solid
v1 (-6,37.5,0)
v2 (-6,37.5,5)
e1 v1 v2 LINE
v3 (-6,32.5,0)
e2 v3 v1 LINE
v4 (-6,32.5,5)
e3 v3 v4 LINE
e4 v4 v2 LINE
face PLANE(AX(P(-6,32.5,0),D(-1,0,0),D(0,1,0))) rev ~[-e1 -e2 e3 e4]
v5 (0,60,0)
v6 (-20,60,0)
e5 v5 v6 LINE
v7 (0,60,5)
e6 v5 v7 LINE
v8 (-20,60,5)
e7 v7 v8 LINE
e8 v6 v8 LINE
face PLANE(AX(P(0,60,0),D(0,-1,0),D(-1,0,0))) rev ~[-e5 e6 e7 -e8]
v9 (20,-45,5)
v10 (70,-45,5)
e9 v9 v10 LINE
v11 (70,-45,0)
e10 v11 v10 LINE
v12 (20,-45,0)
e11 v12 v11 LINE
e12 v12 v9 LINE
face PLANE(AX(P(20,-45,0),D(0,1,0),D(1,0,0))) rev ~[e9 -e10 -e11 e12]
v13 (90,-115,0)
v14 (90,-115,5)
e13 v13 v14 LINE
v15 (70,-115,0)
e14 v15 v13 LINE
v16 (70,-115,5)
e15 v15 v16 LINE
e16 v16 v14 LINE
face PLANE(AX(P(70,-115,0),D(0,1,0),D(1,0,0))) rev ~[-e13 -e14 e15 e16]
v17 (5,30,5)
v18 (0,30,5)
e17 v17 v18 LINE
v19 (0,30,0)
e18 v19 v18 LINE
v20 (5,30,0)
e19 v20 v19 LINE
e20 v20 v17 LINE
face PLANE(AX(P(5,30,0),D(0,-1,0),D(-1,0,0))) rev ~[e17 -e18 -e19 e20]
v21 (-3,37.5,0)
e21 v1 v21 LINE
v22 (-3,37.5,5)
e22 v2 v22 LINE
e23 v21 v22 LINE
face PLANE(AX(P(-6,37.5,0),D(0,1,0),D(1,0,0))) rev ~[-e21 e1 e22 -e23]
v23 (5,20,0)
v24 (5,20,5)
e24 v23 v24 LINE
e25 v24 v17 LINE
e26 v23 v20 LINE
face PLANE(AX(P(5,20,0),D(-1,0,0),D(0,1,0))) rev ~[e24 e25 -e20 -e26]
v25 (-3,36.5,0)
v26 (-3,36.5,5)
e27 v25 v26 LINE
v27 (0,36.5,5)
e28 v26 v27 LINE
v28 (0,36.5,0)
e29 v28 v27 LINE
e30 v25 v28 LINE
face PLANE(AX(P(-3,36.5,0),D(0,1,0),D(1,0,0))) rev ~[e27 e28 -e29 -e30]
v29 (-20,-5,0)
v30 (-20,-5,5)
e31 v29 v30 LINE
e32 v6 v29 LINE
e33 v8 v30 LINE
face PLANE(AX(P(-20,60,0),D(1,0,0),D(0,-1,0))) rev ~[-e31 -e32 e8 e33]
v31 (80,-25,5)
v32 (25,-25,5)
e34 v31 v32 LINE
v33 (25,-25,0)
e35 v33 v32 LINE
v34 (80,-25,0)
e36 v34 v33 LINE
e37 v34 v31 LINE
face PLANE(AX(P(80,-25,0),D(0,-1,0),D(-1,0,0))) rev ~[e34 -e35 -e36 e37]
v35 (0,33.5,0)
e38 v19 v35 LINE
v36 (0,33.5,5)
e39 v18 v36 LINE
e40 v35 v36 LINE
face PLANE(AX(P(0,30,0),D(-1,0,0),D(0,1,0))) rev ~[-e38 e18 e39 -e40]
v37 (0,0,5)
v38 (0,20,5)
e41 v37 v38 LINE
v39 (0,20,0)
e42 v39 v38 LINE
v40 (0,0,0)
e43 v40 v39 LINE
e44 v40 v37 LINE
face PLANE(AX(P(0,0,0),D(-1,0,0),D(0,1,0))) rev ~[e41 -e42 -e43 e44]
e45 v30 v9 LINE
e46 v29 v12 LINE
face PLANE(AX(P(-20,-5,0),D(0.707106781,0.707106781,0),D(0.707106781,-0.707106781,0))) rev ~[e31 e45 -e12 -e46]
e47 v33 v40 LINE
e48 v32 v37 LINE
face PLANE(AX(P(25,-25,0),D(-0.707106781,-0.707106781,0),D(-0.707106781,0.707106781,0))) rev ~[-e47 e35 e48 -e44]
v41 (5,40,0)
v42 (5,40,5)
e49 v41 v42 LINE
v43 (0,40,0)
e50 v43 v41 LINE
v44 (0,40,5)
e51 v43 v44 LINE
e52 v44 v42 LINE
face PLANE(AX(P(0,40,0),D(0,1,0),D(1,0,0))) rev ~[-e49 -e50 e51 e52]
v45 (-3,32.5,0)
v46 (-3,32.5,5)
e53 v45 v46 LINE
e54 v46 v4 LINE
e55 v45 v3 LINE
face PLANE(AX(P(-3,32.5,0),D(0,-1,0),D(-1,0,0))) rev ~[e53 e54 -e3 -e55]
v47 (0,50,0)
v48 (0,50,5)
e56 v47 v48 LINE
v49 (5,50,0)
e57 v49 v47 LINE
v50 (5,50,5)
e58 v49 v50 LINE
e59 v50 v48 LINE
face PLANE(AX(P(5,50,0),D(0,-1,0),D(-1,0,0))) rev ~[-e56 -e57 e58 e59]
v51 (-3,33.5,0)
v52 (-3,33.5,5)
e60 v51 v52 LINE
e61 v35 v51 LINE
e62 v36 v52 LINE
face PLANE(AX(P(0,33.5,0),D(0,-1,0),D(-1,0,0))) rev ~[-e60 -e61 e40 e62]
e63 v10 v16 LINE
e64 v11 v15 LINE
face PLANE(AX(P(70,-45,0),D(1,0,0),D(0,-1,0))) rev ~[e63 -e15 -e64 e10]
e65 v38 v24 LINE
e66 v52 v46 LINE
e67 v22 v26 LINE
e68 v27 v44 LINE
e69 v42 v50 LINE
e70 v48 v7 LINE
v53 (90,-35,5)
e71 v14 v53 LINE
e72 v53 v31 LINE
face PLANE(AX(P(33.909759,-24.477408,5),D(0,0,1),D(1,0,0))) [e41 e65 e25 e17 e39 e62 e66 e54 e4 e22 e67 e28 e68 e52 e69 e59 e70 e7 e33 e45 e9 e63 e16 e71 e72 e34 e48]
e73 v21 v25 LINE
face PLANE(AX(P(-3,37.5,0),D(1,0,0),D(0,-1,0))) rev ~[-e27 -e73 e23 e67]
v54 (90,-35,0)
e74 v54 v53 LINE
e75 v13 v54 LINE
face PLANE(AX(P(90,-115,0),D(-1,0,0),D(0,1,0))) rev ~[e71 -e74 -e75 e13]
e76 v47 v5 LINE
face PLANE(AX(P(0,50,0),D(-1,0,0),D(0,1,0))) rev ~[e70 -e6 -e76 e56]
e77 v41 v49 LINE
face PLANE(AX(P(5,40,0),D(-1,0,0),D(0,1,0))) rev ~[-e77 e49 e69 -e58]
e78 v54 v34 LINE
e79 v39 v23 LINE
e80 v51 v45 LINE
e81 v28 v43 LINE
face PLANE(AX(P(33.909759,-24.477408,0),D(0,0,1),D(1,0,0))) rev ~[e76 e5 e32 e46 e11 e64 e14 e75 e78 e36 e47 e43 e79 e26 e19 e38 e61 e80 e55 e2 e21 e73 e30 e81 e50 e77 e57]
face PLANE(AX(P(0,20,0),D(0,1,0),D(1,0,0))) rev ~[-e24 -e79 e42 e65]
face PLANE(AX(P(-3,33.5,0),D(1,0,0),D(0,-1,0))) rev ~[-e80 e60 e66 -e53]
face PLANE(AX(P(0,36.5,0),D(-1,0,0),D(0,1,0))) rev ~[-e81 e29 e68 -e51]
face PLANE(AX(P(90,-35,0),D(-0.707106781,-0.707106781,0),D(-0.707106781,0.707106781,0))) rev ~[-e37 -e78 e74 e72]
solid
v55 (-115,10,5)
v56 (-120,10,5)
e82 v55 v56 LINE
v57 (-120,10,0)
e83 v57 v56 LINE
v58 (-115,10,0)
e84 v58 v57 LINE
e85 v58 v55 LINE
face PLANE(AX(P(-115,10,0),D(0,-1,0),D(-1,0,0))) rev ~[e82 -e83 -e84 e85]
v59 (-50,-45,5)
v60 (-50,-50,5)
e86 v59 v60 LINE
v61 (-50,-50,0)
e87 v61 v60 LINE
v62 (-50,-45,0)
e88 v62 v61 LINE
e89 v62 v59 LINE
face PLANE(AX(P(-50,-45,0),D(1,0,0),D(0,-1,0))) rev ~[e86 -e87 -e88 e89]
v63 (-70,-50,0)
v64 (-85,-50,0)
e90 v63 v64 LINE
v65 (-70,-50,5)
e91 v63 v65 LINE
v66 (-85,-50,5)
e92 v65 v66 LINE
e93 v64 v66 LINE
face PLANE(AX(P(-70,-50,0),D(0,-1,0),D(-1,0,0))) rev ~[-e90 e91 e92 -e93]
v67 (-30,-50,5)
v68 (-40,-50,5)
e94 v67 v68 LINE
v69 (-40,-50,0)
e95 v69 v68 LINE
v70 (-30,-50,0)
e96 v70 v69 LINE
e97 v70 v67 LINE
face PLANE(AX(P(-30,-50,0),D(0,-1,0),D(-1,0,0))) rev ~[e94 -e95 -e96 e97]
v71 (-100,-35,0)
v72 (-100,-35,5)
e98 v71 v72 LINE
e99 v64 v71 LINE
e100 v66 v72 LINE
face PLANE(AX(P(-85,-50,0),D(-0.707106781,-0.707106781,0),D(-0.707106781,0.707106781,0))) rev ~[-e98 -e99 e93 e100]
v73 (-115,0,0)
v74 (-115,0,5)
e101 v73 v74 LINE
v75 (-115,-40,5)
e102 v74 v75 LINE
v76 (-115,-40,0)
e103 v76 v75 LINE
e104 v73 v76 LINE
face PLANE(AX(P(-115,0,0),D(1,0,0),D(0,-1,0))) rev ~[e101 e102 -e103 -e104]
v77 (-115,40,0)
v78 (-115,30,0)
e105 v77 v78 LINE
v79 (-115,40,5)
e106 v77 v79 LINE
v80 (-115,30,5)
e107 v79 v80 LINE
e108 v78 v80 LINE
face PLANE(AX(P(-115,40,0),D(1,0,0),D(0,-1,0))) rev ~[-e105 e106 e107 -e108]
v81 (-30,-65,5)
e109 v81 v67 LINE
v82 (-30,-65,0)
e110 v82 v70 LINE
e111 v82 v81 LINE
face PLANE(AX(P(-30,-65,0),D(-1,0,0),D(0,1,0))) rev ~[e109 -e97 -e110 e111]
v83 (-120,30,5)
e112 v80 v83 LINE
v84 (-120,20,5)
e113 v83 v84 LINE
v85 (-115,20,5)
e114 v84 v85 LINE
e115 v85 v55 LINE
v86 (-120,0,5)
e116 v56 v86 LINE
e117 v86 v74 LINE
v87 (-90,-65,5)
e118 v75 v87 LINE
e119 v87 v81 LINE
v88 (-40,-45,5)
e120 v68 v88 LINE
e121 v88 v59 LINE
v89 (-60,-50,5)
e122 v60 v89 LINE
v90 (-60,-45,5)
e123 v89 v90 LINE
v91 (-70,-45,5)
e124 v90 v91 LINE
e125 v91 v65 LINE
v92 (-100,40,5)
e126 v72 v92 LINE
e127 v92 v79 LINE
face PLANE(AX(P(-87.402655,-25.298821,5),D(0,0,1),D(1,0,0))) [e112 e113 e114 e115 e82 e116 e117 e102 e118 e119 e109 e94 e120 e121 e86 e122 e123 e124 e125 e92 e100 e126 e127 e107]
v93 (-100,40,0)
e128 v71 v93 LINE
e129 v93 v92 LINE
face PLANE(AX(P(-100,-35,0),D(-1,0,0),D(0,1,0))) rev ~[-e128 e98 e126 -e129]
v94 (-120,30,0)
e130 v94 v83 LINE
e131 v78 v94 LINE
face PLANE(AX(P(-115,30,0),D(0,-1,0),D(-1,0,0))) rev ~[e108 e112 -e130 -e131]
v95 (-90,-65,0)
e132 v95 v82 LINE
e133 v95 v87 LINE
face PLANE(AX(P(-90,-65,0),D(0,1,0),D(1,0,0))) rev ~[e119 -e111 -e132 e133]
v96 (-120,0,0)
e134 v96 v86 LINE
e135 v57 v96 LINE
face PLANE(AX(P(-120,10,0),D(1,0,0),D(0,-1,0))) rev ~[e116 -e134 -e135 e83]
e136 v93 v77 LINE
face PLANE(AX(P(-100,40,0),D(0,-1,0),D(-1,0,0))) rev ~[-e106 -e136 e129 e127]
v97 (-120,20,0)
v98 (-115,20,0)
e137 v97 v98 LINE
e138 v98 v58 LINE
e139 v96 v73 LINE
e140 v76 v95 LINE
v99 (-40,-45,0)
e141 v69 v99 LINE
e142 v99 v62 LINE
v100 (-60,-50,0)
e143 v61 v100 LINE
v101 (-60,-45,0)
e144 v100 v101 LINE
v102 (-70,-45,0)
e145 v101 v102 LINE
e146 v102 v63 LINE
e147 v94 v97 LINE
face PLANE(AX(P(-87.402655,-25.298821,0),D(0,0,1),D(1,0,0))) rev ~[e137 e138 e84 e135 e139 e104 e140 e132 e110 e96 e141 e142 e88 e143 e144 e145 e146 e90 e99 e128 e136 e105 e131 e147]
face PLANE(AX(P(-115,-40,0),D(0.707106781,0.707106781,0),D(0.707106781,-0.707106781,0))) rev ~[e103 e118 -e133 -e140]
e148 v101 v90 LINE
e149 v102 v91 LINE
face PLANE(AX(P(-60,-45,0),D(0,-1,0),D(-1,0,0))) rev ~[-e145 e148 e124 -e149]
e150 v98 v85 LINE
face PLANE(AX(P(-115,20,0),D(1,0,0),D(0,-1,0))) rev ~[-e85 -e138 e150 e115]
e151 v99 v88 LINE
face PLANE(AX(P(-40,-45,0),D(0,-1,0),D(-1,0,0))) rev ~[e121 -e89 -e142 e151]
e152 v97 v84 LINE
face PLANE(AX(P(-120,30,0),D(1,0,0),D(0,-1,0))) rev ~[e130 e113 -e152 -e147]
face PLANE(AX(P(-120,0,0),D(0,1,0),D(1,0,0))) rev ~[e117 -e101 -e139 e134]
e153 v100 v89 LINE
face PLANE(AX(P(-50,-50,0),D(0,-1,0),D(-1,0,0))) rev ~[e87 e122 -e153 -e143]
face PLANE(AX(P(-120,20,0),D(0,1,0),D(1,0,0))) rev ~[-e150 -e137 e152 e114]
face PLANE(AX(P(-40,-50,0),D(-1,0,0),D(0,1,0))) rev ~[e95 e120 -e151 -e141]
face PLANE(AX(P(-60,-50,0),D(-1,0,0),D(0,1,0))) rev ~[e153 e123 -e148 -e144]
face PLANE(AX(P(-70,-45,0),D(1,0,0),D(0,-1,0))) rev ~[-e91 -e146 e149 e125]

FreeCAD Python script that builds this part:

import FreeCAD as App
import Part
import Sketcher

V = App.Vector
Q = App.Units.Quantity

doc = App.newDocument("Part")
body = doc.addObject("PartDesign::Body", "Body")

sketch1 = body.newObject("Sketcher::SketchObject", "Sketch")
sketch1.AttachmentSupport = (doc.getObject("XY_Plane"), [""])
sketch1.MapMode = "FlatFace"
sketch1.addGeometry(Part.LineSegment(V(0, 60, 0), V(-20, 60, 0)), False)
sketch1.addGeometry(Part.LineSegment(V(-20, 60, 0), V(-20, -5, 0)), False)
sketch1.addGeometry(Part.LineSegment(V(-20, -5, 0), V(20, -45, 0)), False)
sketch1.addGeometry(Part.LineSegment(V(20, -45, 0), V(70, -45, 0)), False)
sketch1.addGeometry(Part.LineSegment(V(70, -45, 0), V(70, -115, 0)), False)
sketch1.addGeometry(Part.LineSegment(V(70, -115, 0), V(90, -115, 0)), False)
sketch1.addGeometry(Part.LineSegment(V(90, -115, 0), V(90, -35, 0)), False)
sketch1.addGeometry(Part.LineSegment(V(90, -35, 0), V(80, -25, 0)), False)
sketch1.addGeometry(Part.LineSegment(V(80, -25, 0), V(25, -25, 0)), False)
sketch1.addGeometry(Part.LineSegment(V(25, -25, 0), V(0, 0, 0)), False)
sketch1.addGeometry(Part.LineSegment(V(0, 0, 0), V(0, 20, 0)), False)
sketch1.addGeometry(Part.LineSegment(V(0, 20, 0), V(5, 20, 0)), False)
sketch1.addGeometry(Part.LineSegment(V(5, 20, 0), V(5, 30, 0)), False)
sketch1.addGeometry(Part.LineSegment(V(5, 30, 0), V(0, 30, 0)), False)
sketch1.addGeometry(Part.LineSegment(V(0, 30, 0), V(0, 33.5, 0)), False)
sketch1.addGeometry(Part.LineSegment(V(0, 33.5, 0), V(-3, 33.5, 0)), False)
sketch1.addGeometry(Part.LineSegment(V(-3, 33.5, 0), V(-3, 32.5, 0)), False)
sketch1.addGeometry(Part.LineSegment(V(-3, 32.5, 0), V(-6, 32.5, 0)), False)
sketch1.addGeometry(Part.LineSegment(V(-6, 32.5, 0), V(-6, 37.5, 0)), False)
sketch1.addGeometry(Part.LineSegment(V(-6, 37.5, 0), V(-3, 37.5, 0)), False)
sketch1.addGeometry(Part.LineSegment(V(-3, 37.5, 0), V(-3, 36.5, 0)), False)
sketch1.addGeometry(Part.LineSegment(V(-3, 36.5, 0), V(0, 36.5, 0)), False)
sketch1.addGeometry(Part.LineSegment(V(0, 36.5, 0), V(0, 40, 0)), False)
sketch1.addGeometry(Part.LineSegment(V(0, 40, 0), V(5, 40, 0)), False)
sketch1.addGeometry(Part.LineSegment(V(5, 40, 0), V(5, 50, 0)), False)
sketch1.addGeometry(Part.LineSegment(V(5, 50, 0), V(0, 50, 0)), False)
sketch1.addGeometry(Part.LineSegment(V(0, 50, 0), V(0, 60, 0)), False)
sketch1.addConstraint(Sketcher.Constraint("Coincident", 0, 2, 1, 1))
sketch1.addConstraint(Sketcher.Constraint("Coincident", 1, 2, 2, 1))
sketch1.addConstraint(Sketcher.Constraint("Coincident", 2, 2, 3, 1))
sketch1.addConstraint(Sketcher.Constraint("Coincident", 3, 2, 4, 1))
sketch1.addConstraint(Sketcher.Constraint("Coincident", 4, 2, 5, 1))
sketch1.addConstraint(Sketcher.Constraint("Coincident", 5, 2, 6, 1))
sketch1.addConstraint(Sketcher.Constraint("Coincident", 6, 2, 7, 1))
sketch1.addConstraint(Sketcher.Constraint("Coincident", 7, 2, 8, 1))
sketch1.addConstraint(Sketcher.Constraint("Coincident", 8, 2, 9, 1))
sketch1.addConstraint(Sketcher.Constraint("Coincident", 9, 2, 10, 1))
sketch1.addConstraint(Sketcher.Constraint("Coincident", 10, 2, 11, 1))
sketch1.addConstraint(Sketcher.Constraint("Coincident", 11, 2, 12, 1))
sketch1.addConstraint(Sketcher.Constraint("Coincident", 12, 2, 13, 1))
sketch1.addConstraint(Sketcher.Constraint("Coincident", 13, 2, 14, 1))
sketch1.addConstraint(Sketcher.Constraint("Coincident", 14, 2, 15, 1))
sketch1.addConstraint(Sketcher.Constraint("Coincident", 15, 2, 16, 1))
sketch1.addConstraint(Sketcher.Constraint("Coincident", 16, 2, 17, 1))
sketch1.addConstraint(Sketcher.Constraint("Coincident", 17, 2, 18, 1))
sketch1.addConstraint(Sketcher.Constraint("Coincident", 18, 2, 19, 1))
sketch1.addConstraint(Sketcher.Constraint("Coincident", 19, 2, 20, 1))
sketch1.addConstraint(Sketcher.Constraint("Coincident", 20, 2, 21, 1))
sketch1.addConstraint(Sketcher.Constraint("Coincident", 21, 2, 22, 1))
sketch1.addConstraint(Sketcher.Constraint("Coincident", 22, 2, 23, 1))
sketch1.addConstraint(Sketcher.Constraint("Coincident", 23, 2, 24, 1))
sketch1.addConstraint(Sketcher.Constraint("Coincident", 24, 2, 25, 1))
sketch1.addConstraint(Sketcher.Constraint("Coincident", 25, 2, 26, 1))
sketch1.addConstraint(Sketcher.Constraint("Coincident", 26, 2, 0, 1))
sketch1.addConstraint(Sketcher.Constraint("Horizontal", 0))
sketch1.addConstraint(Sketcher.Constraint("Vertical", 1))
sketch1.addConstraint(Sketcher.Constraint("Horizontal", 3))
sketch1.addConstraint(Sketcher.Constraint("Vertical", 4))
sketch1.addConstraint(Sketcher.Constraint("Horizontal", 5))
sketch1.addConstraint(Sketcher.Constraint("Vertical", 6))
sketch1.addConstraint(Sketcher.Constraint("Horizontal", 8))
sketch1.addConstraint(Sketcher.Constraint("Vertical", 10))
sketch1.addConstraint(Sketcher.Constraint("Horizontal", 11))
sketch1.addConstraint(Sketcher.Constraint("Vertical", 12))
sketch1.addConstraint(Sketcher.Constraint("Horizontal", 13))
sketch1.addConstraint(Sketcher.Constraint("Vertical", 14))
sketch1.addConstraint(Sketcher.Constraint("Horizontal", 15))
sketch1.addConstraint(Sketcher.Constraint("Vertical", 16))
sketch1.addConstraint(Sketcher.Constraint("Horizontal", 17))
sketch1.addConstraint(Sketcher.Constraint("Vertical", 18))
sketch1.addConstraint(Sketcher.Constraint("Horizontal", 19))
sketch1.addConstraint(Sketcher.Constraint("Vertical", 20))
sketch1.addConstraint(Sketcher.Constraint("Horizontal", 21))
sketch1.addConstraint(Sketcher.Constraint("Vertical", 22))
sketch1.addConstraint(Sketcher.Constraint("Horizontal", 23))
sketch1.addConstraint(Sketcher.Constraint("Vertical", 24))
sketch1.addConstraint(Sketcher.Constraint("Horizontal", 25))
sketch1.addConstraint(Sketcher.Constraint("Vertical", 26))
sketch1.addConstraint(Sketcher.Constraint("Coincident", 9, 2, -1, 1))
sketch1.addConstraint(Sketcher.Constraint("PointOnObject", 13, 2, -2))
sketch1.addConstraint(Sketcher.Constraint("PointOnObject", 21, 2, -2))
sketch1.addConstraint(Sketcher.Constraint("PointOnObject", 25, 2, -2))
sketch1.addConstraint(Sketcher.Constraint("Parallel", 2, 7))
sketch1.addConstraint(Sketcher.Constraint("Parallel", 7, 9))
sketch1.addConstraint(Sketcher.Constraint("Vertical", 16, 2, 19, 2))
sketch1.addConstraint(Sketcher.Constraint("Vertical", 12, 2, 23, 2))
sketch1.addConstraint(Sketcher.Constraint("Equal", 0, 5))
sketch1.addConstraint(Sketcher.Constraint("Equal", 15, 17))
sketch1.addConstraint(Sketcher.Constraint("Equal", 5, 10))
sketch1.addConstraint(Sketcher.Constraint("Equal", 25, 18))
sketch1.addConstraint(Sketcher.Constraint("Equal", 16, 20))
sketch1.addConstraint(Sketcher.Constraint("Equal", 14, 22))
sketch1.addConstraint(Sketcher.Constraint("Equal", 12, 24))
sketch1.addConstraint(Sketcher.Constraint("Equal", 24, 26))
sketch1.addConstraint(Sketcher.Constraint("DistanceX", 0, 2, 0, 1, Q("20 mm")))
sketch1.addConstraint(Sketcher.Constraint("DistanceX", 3, 1, 3, 2, Q("50 mm")))
sketch1.addConstraint(Sketcher.Constraint("DistanceX", 8, 2, 8, 1, Q("55 mm")))
sketch1.addConstraint(Sketcher.Constraint("DistanceX", 11, 1, 11, 2, Q("5 mm")))
sketch1.addConstraint(Sketcher.Constraint("DistanceX", 15, 2, 15, 1, Q("3 mm")))
sketch1.addConstraint(Sketcher.Constraint("DistanceY", 1, 2, 1, 1, Q("65 mm")))
sketch1.addConstraint(Sketcher.Constraint("DistanceY", 4, 2, 4, 1, Q("70 mm")))
sketch1.addConstraint(Sketcher.Constraint("DistanceY", 6, 1, 6, 2, Q("80 mm")))
sketch1.addConstraint(Sketcher.Constraint("DistanceY", 12, 1, 12, 2, Q("10 mm")))
sketch1.addConstraint(Sketcher.Constraint("DistanceY", 16, 2, 16, 1, Q("1 mm")))
sketch1.addConstraint(Sketcher.Constraint("Angle", 2, Q("-45 deg")))
sketch1.addConstraint(Sketcher.Constraint("DistanceX", -1, 1, 2, 2, Q("20 mm")))
sketch1.addConstraint(Sketcher.Constraint("DistanceX", -1, 1, 7, 2, Q("80 mm")))
pad1 = body.newObject("PartDesign::Pad", "Pad")
pad1.Profile = sketch1
pad1.Length = 5
body2 = doc.addObject("PartDesign::Body", "Body001")

sketch2 = body2.newObject("Sketcher::SketchObject", "Sketch001")
sketch2.AttachmentSupport = (doc.getObject("XY_Plane001"), [""])
sketch2.MapMode = "FlatFace"
sketch2.addGeometry(Part.LineSegment(V(-100, 40, 0), V(-115, 40, 0)), False)
sketch2.addGeometry(Part.LineSegment(V(-115, 40, 0), V(-115, 30, 0)), False)
sketch2.addGeometry(Part.LineSegment(V(-115, 30, 0), V(-120, 30, 0)), False)
sketch2.addGeometry(Part.LineSegment(V(-120, 30, 0), V(-120, 20, 0)), False)
sketch2.addGeometry(Part.LineSegment(V(-120, 20, 0), V(-115, 20, 0)), False)
sketch2.addGeometry(Part.LineSegment(V(-115, 20, 0), V(-115, 10, 0)), False)
sketch2.addGeometry(Part.LineSegment(V(-115, 10, 0), V(-120, 10, 0)), False)
sketch2.addGeometry(Part.LineSegment(V(-120, 10, 0), V(-120, 0, 0)), False)
sketch2.addGeometry(Part.LineSegment(V(-120, 0, 0), V(-115, 0, 0)), False)
sketch2.addGeometry(Part.LineSegment(V(-115, 0, 0), V(-115, -40, 0)), False)
sketch2.addGeometry(Part.LineSegment(V(-115, -40, 0), V(-90, -65, 0)), False)
sketch2.addGeometry(Part.LineSegment(V(-90, -65, 0), V(-30, -65, 0)), False)
sketch2.addGeometry(Part.LineSegment(V(-30, -65, 0), V(-30, -50, 0)), False)
sketch2.addGeometry(Part.LineSegment(V(-30, -50, 0), V(-40, -50, 0)), False)
sketch2.addGeometry(Part.LineSegment(V(-40, -50, 0), V(-40, -45, 0)), False)
sketch2.addGeometry(Part.LineSegment(V(-40, -45, 0), V(-50, -45, 0)), False)
sketch2.addGeometry(Part.LineSegment(V(-50, -45, 0), V(-50, -50, 0)), False)
sketch2.addGeometry(Part.LineSegment(V(-50, -50, 0), V(-60, -50, 0)), False)
sketch2.addGeometry(Part.LineSegment(V(-60, -50, 0), V(-60, -45, 0)), False)
sketch2.addGeometry(Part.LineSegment(V(-60, -45, 0), V(-70, -45, 0)), False)
sketch2.addGeometry(Part.LineSegment(V(-70, -45, 0), V(-70, -50, 0)), False)
sketch2.addGeometry(Part.LineSegment(V(-70, -50, 0), V(-85, -50, 0)), False)
sketch2.addGeometry(Part.LineSegment(V(-85, -50, 0), V(-100, -35, 0)), False)
sketch2.addGeometry(Part.LineSegment(V(-100, -35, 0), V(-100, 40, 0)), False)
sketch2.addConstraint(Sketcher.Constraint("Coincident", 0, 2, 1, 1))
sketch2.addConstraint(Sketcher.Constraint("Coincident", 1, 2, 2, 1))
sketch2.addConstraint(Sketcher.Constraint("Coincident", 2, 2, 3, 1))
sketch2.addConstraint(Sketcher.Constraint("Coincident", 3, 2, 4, 1))
sketch2.addConstraint(Sketcher.Constraint("Coincident", 4, 2, 5, 1))
sketch2.addConstraint(Sketcher.Constraint("Coincident", 5, 2, 6, 1))
sketch2.addConstraint(Sketcher.Constraint("Coincident", 6, 2, 7, 1))
sketch2.addConstraint(Sketcher.Constraint("Coincident", 7, 2, 8, 1))
sketch2.addConstraint(Sketcher.Constraint("Coincident", 8, 2, 9, 1))
sketch2.addConstraint(Sketcher.Constraint("Coincident", 9, 2, 10, 1))
sketch2.addConstraint(Sketcher.Constraint("Coincident", 10, 2, 11, 1))
sketch2.addConstraint(Sketcher.Constraint("Coincident", 11, 2, 12, 1))
sketch2.addConstraint(Sketcher.Constraint("Coincident", 12, 2, 13, 1))
sketch2.addConstraint(Sketcher.Constraint("Coincident", 13, 2, 14, 1))
sketch2.addConstraint(Sketcher.Constraint("Coincident", 14, 2, 15, 1))
sketch2.addConstraint(Sketcher.Constraint("Coincident", 15, 2, 16, 1))
sketch2.addConstraint(Sketcher.Constraint("Coincident", 16, 2, 17, 1))
sketch2.addConstraint(Sketcher.Constraint("Coincident", 17, 2, 18, 1))
sketch2.addConstraint(Sketcher.Constraint("Coincident", 18, 2, 19, 1))
sketch2.addConstraint(Sketcher.Constraint("Coincident", 19, 2, 20, 1))
sketch2.addConstraint(Sketcher.Constraint("Coincident", 20, 2, 21, 1))
sketch2.addConstraint(Sketcher.Constraint("Coincident", 21, 2, 22, 1))
sketch2.addConstraint(Sketcher.Constraint("Coincident", 22, 2, 23, 1))
sketch2.addConstraint(Sketcher.Constraint("Coincident", 23, 2, 0, 1))
sketch2.addConstraint(Sketcher.Constraint("Horizontal", 0))
sketch2.addConstraint(Sketcher.Constraint("Vertical", 1))
sketch2.addConstraint(Sketcher.Constraint("Horizontal", 2))
sketch2.addConstraint(Sketcher.Constraint("Vertical", 3))
sketch2.addConstraint(Sketcher.Constraint("Horizontal", 4))
sketch2.addConstraint(Sketcher.Constraint("Vertical", 5))
sketch2.addConstraint(Sketcher.Constraint("Horizontal", 6))
sketch2.addConstraint(Sketcher.Constraint("Vertical", 7))
sketch2.addConstraint(Sketcher.Constraint("Horizontal", 8))
sketch2.addConstraint(Sketcher.Constraint("Vertical", 9))
sketch2.addConstraint(Sketcher.Constraint("Horizontal", 11))
sketch2.addConstraint(Sketcher.Constraint("Vertical", 12))
sketch2.addConstraint(Sketcher.Constraint("Horizontal", 13))
sketch2.addConstraint(Sketcher.Constraint("Vertical", 14))
sketch2.addConstraint(Sketcher.Constraint("Horizontal", 15))
sketch2.addConstraint(Sketcher.Constraint("Vertical", 16))
sketch2.addConstraint(Sketcher.Constraint("Horizontal", 17))
sketch2.addConstraint(Sketcher.Constraint("Vertical", 18))
sketch2.addConstraint(Sketcher.Constraint("Horizontal", 19))
sketch2.addConstraint(Sketcher.Constraint("Vertical", 20))
sketch2.addConstraint(Sketcher.Constraint("Horizontal", 21))
sketch2.addConstraint(Sketcher.Constraint("Vertical", 23))
sketch2.addConstraint(Sketcher.Constraint("Symmetric", 0, 2, 9, 2, -1))
sketch2.addConstraint(Sketcher.Constraint("PointOnObject", 7, 2, -1))
sketch2.addConstraint(Sketcher.Constraint("Parallel", 10, 22))
sketch2.addConstraint(Sketcher.Constraint("Horizontal", 13, 2, 16, 2))
sketch2.addConstraint(Sketcher.Constraint("Horizontal", 15, 2, 18, 2))
sketch2.addConstraint(Sketcher.Constraint("Horizontal", 17, 2, 20, 2))
sketch2.addConstraint(Sketcher.Constraint("Vertical", 1, 2, 4, 2))
sketch2.addConstraint(Sketcher.Constraint("Vertical", 3, 2, 6, 2))
sketch2.addConstraint(Sketcher.Constraint("Equal", 13, 15))
sketch2.addConstraint(Sketcher.Constraint("Equal", 15, 17))
sketch2.addConstraint(Sketcher.Constraint("Equal", 17, 19))
sketch2.addConstraint(Sketcher.Constraint("Equal", 0, 21))
sketch2.addConstraint(Sketcher.Constraint("Equal", 19, 1))
sketch2.addConstraint(Sketcher.Constraint("Equal", 1, 3))
sketch2.addConstraint(Sketcher.Constraint("Equal", 3, 5))
sketch2.addConstraint(Sketcher.Constraint("Equal", 5, 7))
sketch2.addConstraint(Sketcher.Constraint("Equal", 21, 12))
sketch2.addConstraint(Sketcher.Constraint("Equal", 8, 14))
sketch2.addConstraint(Sketcher.Constraint("DistanceX", 0, 2, 0, 1, Q("15 mm")))
sketch2.addConstraint(Sketcher.Constraint("DistanceX", 2, 2, 2, 1, Q("5 mm")))
sketch2.addConstraint(Sketcher.Constraint("DistanceX", 11, 1, 11, 2, Q("60 mm")))
sketch2.addConstraint(Sketcher.Constraint("DistanceX", 13, 2, 13, 1, Q("10 mm")))
sketch2.addConstraint(Sketcher.Constraint("DistanceY", 23, 1, 23, 2, Q("75 mm")))
sketch2.addConstraint(Sketcher.Constraint("DistanceX", 0, 2, -1, 1, Q("115 mm")))
sketch2.addConstraint(Sketcher.Constraint("DistanceX", 10, 2, -1, 1, Q("90 mm")))
pad2 = body2.newObject("PartDesign::Pad", "Pad001")
pad2.Profile = sketch2
pad2.Length = 5

doc.recompute()
